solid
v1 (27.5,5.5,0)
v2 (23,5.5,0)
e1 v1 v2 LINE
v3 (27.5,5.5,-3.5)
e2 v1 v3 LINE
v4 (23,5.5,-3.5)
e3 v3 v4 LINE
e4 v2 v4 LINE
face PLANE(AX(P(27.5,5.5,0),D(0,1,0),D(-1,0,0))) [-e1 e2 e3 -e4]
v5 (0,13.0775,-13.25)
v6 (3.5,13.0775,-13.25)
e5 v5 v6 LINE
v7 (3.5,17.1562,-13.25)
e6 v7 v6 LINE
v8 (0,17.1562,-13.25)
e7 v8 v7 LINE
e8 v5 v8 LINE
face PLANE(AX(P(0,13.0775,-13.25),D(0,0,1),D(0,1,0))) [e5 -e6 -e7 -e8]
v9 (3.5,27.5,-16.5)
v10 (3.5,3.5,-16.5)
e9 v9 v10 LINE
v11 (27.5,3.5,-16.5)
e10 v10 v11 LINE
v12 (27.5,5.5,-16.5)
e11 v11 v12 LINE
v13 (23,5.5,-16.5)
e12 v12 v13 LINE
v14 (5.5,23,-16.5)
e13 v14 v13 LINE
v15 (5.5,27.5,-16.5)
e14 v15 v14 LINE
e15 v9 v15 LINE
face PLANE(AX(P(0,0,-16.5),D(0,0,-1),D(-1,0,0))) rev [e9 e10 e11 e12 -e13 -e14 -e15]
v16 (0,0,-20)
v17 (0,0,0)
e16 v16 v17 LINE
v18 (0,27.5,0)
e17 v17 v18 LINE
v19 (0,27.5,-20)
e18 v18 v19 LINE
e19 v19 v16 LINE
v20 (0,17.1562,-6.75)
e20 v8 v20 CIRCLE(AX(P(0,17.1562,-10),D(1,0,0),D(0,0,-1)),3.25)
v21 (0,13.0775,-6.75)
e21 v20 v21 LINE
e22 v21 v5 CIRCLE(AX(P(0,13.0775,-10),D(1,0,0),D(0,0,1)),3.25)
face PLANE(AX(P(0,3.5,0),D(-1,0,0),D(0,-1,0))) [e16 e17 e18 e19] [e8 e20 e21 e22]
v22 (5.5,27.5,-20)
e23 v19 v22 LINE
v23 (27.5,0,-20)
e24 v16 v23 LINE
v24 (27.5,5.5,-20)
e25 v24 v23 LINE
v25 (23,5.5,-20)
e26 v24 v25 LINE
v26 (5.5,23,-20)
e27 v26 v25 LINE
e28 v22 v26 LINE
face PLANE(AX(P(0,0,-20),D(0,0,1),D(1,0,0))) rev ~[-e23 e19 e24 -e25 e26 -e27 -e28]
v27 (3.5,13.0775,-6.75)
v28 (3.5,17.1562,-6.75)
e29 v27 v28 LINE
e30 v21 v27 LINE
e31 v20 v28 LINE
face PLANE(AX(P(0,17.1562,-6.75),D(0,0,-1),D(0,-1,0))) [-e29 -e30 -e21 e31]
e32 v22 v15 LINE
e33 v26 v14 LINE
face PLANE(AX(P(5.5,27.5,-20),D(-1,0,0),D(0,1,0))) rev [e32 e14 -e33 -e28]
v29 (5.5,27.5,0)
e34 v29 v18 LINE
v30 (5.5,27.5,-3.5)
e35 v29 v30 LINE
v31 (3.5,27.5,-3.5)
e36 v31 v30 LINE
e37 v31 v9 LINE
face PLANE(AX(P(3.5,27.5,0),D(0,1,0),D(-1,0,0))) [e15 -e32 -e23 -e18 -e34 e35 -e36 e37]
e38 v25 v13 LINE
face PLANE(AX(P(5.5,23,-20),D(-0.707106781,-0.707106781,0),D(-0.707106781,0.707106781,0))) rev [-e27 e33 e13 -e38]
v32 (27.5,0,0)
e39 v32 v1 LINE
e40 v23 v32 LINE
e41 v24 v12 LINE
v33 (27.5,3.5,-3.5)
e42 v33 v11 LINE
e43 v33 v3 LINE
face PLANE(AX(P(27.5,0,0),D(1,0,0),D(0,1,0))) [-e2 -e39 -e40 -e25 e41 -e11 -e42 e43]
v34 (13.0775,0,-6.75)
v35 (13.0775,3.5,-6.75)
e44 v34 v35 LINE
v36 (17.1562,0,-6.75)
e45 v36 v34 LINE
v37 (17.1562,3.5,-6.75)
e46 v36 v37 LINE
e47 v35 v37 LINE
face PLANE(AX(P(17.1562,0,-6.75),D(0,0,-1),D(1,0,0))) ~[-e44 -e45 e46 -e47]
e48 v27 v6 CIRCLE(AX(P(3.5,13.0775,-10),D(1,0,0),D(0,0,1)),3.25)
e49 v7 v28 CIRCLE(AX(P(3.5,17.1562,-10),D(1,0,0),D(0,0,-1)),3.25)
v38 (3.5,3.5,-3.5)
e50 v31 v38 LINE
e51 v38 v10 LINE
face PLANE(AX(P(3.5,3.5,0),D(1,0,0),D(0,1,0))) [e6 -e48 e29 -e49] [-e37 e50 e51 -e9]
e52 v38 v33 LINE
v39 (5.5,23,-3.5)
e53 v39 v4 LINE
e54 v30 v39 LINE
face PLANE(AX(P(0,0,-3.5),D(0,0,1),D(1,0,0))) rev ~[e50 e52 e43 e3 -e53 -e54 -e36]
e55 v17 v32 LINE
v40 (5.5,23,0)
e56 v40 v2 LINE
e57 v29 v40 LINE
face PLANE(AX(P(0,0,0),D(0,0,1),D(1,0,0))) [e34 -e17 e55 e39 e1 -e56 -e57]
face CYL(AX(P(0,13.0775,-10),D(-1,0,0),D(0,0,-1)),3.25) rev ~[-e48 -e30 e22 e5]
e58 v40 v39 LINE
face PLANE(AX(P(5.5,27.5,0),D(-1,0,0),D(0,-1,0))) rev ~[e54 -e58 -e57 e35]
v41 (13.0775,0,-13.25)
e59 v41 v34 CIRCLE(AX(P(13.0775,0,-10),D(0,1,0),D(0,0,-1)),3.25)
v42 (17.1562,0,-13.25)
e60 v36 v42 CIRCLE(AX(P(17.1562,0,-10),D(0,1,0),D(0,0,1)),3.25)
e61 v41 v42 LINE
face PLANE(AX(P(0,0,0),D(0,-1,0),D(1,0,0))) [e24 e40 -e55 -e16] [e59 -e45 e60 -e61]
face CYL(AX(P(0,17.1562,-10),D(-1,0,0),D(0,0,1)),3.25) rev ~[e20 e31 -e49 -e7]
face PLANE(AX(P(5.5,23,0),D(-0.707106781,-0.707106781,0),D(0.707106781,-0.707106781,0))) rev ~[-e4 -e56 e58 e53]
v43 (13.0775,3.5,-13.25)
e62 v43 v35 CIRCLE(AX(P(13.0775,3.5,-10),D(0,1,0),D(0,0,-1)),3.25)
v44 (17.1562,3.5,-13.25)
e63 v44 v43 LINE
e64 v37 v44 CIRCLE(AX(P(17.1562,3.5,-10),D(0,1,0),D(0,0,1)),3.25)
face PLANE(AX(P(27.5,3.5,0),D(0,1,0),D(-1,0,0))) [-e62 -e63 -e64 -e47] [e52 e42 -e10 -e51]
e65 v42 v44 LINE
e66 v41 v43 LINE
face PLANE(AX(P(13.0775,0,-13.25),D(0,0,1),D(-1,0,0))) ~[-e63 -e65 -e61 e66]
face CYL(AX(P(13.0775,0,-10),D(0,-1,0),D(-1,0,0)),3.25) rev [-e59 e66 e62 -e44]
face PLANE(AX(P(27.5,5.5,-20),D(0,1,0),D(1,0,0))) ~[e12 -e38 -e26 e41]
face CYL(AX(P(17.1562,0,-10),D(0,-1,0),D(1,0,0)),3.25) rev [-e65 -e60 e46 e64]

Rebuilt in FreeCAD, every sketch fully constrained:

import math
import FreeCAD as App
import Part
import Sketcher
from FreeCAD import Vector
Q = App.Units.Quantity

doc = App.newDocument("Part")
body = doc.addObject("PartDesign::Body", "Body")

sketch1 = body.newObject("Sketcher::SketchObject", "Sketch")
sketch1.AttachmentSupport = (doc.getObject("XY_Plane"), [""])
sketch1.MapMode = "FlatFace"
sketch1.addGeometry(Part.LineSegment(Vector(0, 27.5, 0), Vector(0, 0, 0)), False)
sketch1.addGeometry(Part.LineSegment(Vector(0, 0, 0), Vector(27.5, 0, 0)), False)
sketch1.addGeometry(Part.LineSegment(Vector(27.5, 0, 0), Vector(27.5, 3.5, 0)), False)
sketch1.addGeometry(Part.LineSegment(Vector(27.5, 3.5, 0), Vector(3.5, 3.5, 0)), False)
sketch1.addGeometry(Part.LineSegment(Vector(3.5, 3.5, 0), Vector(3.5, 27.5, 0)), False)
sketch1.addGeometry(Part.LineSegment(Vector(3.5, 27.5, 0), Vector(0, 27.5, 0)), False)
sketch1.addConstraint(Sketcher.Constraint("Coincident", 0, 2, 1, 1))
sketch1.addConstraint(Sketcher.Constraint("Coincident", 1, 2, 2, 1))
sketch1.addConstraint(Sketcher.Constraint("Coincident", 2, 2, 3, 1))
sketch1.addConstraint(Sketcher.Constraint("Coincident", 3, 2, 4, 1))
sketch1.addConstraint(Sketcher.Constraint("Coincident", 4, 2, 5, 1))
sketch1.addConstraint(Sketcher.Constraint("Coincident", 5, 2, 0, 1))
sketch1.addConstraint(Sketcher.Constraint("Vertical", 0))
sketch1.addConstraint(Sketcher.Constraint("Horizontal", 1))
sketch1.addConstraint(Sketcher.Constraint("Vertical", 2))
sketch1.addConstraint(Sketcher.Constraint("Horizontal", 3))
sketch1.addConstraint(Sketcher.Constraint("Vertical", 4))
sketch1.addConstraint(Sketcher.Constraint("Horizontal", 5))
sketch1.addConstraint(Sketcher.Constraint("Coincident", 0, 2, -1, 1))
sketch1.addConstraint(Sketcher.Constraint("Equal", 1, 0))
sketch1.addConstraint(Sketcher.Constraint("Equal", 5, 2))
sketch1.addConstraint(Sketcher.Constraint("DistanceX", 1, 1, 1, 2, Q("27.5 mm")))
sketch1.addConstraint(Sketcher.Constraint("DistanceX", 5, 2, 5, 1, Q("3.5 mm")))
pad1 = body.newObject("PartDesign::Pad", "Pad")
pad1.Profile = sketch1
pad1.Length = 20
pad1.Reversed = True

sketch2 = body.newObject("Sketcher::SketchObject", "Sketch001")
sketch2.AttachmentSupport = (doc.getObject("XY_Plane"), [""])
sketch2.MapMode = "FlatFace"
sketch2.addGeometry(Part.LineSegment(Vector(0, 27.5, 0), Vector(0, 0, 0)), False)
sketch2.addGeometry(Part.LineSegment(Vector(0, 0, 0), Vector(27.5, 0, 0)), False)
sketch2.addGeometry(Part.LineSegment(Vector(27.5, 0, 0), Vector(27.5, 5.5, 0)), False)
sketch2.addGeometry(Part.LineSegment(Vector(27.5, 5.5, 0), Vector(23, 5.5, 0)), False)
sketch2.addGeometry(Part.LineSegment(Vector(23, 5.5, 0), Vector(5.5, 23, 0)), False)
sketch2.addGeometry(Part.LineSegment(Vector(5.5, 23, 0), Vector(5.5, 27.5, 0)), False)
sketch2.addGeometry(Part.LineSegment(Vector(5.5, 27.5, 0), Vector(0, 27.5, 0)), False)
sketch2.addConstraint(Sketcher.Constraint("Coincident", 0, 2, 1, 1))
sketch2.addConstraint(Sketcher.Constraint("Coincident", 1, 2, 2, 1))
sketch2.addConstraint(Sketcher.Constraint("Coincident", 2, 2, 3, 1))
sketch2.addConstraint(Sketcher.Constraint("Coincident", 3, 2, 4, 1))
sketch2.addConstraint(Sketcher.Constraint("Coincident", 4, 2, 5, 1))
sketch2.addConstraint(Sketcher.Constraint("Coincident", 5, 2, 6, 1))
sketch2.addConstraint(Sketcher.Constraint("Coincident", 6, 2, 0, 1))
sketch2.addConstraint(Sketcher.Constraint("Vertical", 0))
sketch2.addConstraint(Sketcher.Constraint("Horizontal", 1))
sketch2.addConstraint(Sketcher.Constraint("Vertical", 2))
sketch2.addConstraint(Sketcher.Constraint("Horizontal", 3))
sketch2.addConstraint(Sketcher.Constraint("Vertical", 5))
sketch2.addConstraint(Sketcher.Constraint("Horizontal", 6))
sketch2.addConstraint(Sketcher.Constraint("Coincident", 0, 2, -1, 1))
sketch2.addConstraint(Sketcher.Constraint("Equal", 1, 0))
sketch2.addConstraint(Sketcher.Constraint("Equal", 6, 2))
sketch2.addConstraint(Sketcher.Constraint("Equal", 3, 5))
sketch2.addConstraint(Sketcher.Constraint("DistanceX", 1, 1, 1, 2, Q("27.5 mm")))
sketch2.addConstraint(Sketcher.Constraint("DistanceX", 3, 2, 3, 1, Q("4.5 mm")))
sketch2.addConstraint(Sketcher.Constraint("DistanceX", 6, 2, 6, 1, Q("5.5 mm")))
pad2 = body.newObject("PartDesign::Pad", "Pad001")
pad2.Profile = sketch2
pad2.Length = 3.5
pad2.Reversed = True
doc.recompute()

datumplane = body.newObject("PartDesign::Plane", "DatumPlane")
datumplane.AttachmentSupport = (doc.getObject("XY_Plane"), [""])
datumplane.MapMode = "FlatFace"
datumplane.AttachmentOffset = App.Placement(Vector(0, 0, -10), App.Rotation())
mirrored = body.newObject("PartDesign::Mirrored", "Mirrored")
mirrored.Originals = [pad2]
mirrored.MirrorPlane = (datumplane, [""])
body.Tip = mirrored

sketch3 = body.newObject("Sketcher::SketchObject", "Sketch002")
sketch3.AttachmentSupport = (doc.getObject("YZ_Plane"), [""])
sketch3.MapMode = "FlatFace"
sketch3.addGeometry(Part.LineSegment(Vector(17.1562, -13.25, 0), Vector(13.0775, -13.25, 0)), False)
sketch3.addGeometry(Part.ArcOfCircle(Part.Circle(Vector(13.0775, -10, 0), Vector(0, 0, 1), 3.25), math.radians(90), math.radians(270)), False)
sketch3.addGeometry(Part.LineSegment(Vector(13.0775, -6.75, 0), Vector(17.1562, -6.75, 0)), False)
sketch3.addGeometry(Part.ArcOfCircle(Part.Circle(Vector(17.1562, -10, 0), Vector(0, 0, 1), 3.25), math.radians(-90), math.radians(90)), False)
sketch3.addConstraint(Sketcher.Constraint("Tangent", 0, 2, 1, 2))
sketch3.addConstraint(Sketcher.Constraint("Tangent", 1, 1, 2, 1))
sketch3.addConstraint(Sketcher.Constraint("Tangent", 2, 2, 3, 2))
sketch3.addConstraint(Sketcher.Constraint("Tangent", 3, 1, 0, 1))
sketch3.addConstraint(Sketcher.Constraint("Horizontal", 0))
sketch3.addConstraint(Sketcher.Constraint("Horizontal", 2))
sketch3.addConstraint(Sketcher.Constraint("Radius", 1, Q("3.25 mm")))
sketch3.addConstraint(Sketcher.Constraint("DistanceY", 1, 3, -1, 1, Q("10 mm")))
sketch3.addConstraint(Sketcher.Constraint("DistanceX", 0, 2, 0, 1, Q("4.0787 mm")))
sketch3.addConstraint(Sketcher.Constraint("DistanceX", -1, 1, 1, 3, Q("13.0775 mm")))
pocket1 = body.newObject("PartDesign::Pocket", "Pocket")
pocket1.Profile = sketch3
pocket1.Type = "ThroughAll"
pocket1.Reversed = True
doc.recompute()

datumplane2 = body.newObject("PartDesign::Plane", "DatumPlane001")
datumplane2.Placement = App.Placement(Vector(0, 0, 0), App.Rotation(Vector(0.707106781, 0.707106781, 0), Vector(0, 0, -1), Vector(-0.707106781, 0.707106781, 0), "ZXY"))
mirrored2 = body.newObject("PartDesign::Mirrored", "Mirrored001")
mirrored2.Originals = [pocket1]
mirrored2.MirrorPlane = (datumplane2, [""])
body.Tip = mirrored2

doc.recompute()
